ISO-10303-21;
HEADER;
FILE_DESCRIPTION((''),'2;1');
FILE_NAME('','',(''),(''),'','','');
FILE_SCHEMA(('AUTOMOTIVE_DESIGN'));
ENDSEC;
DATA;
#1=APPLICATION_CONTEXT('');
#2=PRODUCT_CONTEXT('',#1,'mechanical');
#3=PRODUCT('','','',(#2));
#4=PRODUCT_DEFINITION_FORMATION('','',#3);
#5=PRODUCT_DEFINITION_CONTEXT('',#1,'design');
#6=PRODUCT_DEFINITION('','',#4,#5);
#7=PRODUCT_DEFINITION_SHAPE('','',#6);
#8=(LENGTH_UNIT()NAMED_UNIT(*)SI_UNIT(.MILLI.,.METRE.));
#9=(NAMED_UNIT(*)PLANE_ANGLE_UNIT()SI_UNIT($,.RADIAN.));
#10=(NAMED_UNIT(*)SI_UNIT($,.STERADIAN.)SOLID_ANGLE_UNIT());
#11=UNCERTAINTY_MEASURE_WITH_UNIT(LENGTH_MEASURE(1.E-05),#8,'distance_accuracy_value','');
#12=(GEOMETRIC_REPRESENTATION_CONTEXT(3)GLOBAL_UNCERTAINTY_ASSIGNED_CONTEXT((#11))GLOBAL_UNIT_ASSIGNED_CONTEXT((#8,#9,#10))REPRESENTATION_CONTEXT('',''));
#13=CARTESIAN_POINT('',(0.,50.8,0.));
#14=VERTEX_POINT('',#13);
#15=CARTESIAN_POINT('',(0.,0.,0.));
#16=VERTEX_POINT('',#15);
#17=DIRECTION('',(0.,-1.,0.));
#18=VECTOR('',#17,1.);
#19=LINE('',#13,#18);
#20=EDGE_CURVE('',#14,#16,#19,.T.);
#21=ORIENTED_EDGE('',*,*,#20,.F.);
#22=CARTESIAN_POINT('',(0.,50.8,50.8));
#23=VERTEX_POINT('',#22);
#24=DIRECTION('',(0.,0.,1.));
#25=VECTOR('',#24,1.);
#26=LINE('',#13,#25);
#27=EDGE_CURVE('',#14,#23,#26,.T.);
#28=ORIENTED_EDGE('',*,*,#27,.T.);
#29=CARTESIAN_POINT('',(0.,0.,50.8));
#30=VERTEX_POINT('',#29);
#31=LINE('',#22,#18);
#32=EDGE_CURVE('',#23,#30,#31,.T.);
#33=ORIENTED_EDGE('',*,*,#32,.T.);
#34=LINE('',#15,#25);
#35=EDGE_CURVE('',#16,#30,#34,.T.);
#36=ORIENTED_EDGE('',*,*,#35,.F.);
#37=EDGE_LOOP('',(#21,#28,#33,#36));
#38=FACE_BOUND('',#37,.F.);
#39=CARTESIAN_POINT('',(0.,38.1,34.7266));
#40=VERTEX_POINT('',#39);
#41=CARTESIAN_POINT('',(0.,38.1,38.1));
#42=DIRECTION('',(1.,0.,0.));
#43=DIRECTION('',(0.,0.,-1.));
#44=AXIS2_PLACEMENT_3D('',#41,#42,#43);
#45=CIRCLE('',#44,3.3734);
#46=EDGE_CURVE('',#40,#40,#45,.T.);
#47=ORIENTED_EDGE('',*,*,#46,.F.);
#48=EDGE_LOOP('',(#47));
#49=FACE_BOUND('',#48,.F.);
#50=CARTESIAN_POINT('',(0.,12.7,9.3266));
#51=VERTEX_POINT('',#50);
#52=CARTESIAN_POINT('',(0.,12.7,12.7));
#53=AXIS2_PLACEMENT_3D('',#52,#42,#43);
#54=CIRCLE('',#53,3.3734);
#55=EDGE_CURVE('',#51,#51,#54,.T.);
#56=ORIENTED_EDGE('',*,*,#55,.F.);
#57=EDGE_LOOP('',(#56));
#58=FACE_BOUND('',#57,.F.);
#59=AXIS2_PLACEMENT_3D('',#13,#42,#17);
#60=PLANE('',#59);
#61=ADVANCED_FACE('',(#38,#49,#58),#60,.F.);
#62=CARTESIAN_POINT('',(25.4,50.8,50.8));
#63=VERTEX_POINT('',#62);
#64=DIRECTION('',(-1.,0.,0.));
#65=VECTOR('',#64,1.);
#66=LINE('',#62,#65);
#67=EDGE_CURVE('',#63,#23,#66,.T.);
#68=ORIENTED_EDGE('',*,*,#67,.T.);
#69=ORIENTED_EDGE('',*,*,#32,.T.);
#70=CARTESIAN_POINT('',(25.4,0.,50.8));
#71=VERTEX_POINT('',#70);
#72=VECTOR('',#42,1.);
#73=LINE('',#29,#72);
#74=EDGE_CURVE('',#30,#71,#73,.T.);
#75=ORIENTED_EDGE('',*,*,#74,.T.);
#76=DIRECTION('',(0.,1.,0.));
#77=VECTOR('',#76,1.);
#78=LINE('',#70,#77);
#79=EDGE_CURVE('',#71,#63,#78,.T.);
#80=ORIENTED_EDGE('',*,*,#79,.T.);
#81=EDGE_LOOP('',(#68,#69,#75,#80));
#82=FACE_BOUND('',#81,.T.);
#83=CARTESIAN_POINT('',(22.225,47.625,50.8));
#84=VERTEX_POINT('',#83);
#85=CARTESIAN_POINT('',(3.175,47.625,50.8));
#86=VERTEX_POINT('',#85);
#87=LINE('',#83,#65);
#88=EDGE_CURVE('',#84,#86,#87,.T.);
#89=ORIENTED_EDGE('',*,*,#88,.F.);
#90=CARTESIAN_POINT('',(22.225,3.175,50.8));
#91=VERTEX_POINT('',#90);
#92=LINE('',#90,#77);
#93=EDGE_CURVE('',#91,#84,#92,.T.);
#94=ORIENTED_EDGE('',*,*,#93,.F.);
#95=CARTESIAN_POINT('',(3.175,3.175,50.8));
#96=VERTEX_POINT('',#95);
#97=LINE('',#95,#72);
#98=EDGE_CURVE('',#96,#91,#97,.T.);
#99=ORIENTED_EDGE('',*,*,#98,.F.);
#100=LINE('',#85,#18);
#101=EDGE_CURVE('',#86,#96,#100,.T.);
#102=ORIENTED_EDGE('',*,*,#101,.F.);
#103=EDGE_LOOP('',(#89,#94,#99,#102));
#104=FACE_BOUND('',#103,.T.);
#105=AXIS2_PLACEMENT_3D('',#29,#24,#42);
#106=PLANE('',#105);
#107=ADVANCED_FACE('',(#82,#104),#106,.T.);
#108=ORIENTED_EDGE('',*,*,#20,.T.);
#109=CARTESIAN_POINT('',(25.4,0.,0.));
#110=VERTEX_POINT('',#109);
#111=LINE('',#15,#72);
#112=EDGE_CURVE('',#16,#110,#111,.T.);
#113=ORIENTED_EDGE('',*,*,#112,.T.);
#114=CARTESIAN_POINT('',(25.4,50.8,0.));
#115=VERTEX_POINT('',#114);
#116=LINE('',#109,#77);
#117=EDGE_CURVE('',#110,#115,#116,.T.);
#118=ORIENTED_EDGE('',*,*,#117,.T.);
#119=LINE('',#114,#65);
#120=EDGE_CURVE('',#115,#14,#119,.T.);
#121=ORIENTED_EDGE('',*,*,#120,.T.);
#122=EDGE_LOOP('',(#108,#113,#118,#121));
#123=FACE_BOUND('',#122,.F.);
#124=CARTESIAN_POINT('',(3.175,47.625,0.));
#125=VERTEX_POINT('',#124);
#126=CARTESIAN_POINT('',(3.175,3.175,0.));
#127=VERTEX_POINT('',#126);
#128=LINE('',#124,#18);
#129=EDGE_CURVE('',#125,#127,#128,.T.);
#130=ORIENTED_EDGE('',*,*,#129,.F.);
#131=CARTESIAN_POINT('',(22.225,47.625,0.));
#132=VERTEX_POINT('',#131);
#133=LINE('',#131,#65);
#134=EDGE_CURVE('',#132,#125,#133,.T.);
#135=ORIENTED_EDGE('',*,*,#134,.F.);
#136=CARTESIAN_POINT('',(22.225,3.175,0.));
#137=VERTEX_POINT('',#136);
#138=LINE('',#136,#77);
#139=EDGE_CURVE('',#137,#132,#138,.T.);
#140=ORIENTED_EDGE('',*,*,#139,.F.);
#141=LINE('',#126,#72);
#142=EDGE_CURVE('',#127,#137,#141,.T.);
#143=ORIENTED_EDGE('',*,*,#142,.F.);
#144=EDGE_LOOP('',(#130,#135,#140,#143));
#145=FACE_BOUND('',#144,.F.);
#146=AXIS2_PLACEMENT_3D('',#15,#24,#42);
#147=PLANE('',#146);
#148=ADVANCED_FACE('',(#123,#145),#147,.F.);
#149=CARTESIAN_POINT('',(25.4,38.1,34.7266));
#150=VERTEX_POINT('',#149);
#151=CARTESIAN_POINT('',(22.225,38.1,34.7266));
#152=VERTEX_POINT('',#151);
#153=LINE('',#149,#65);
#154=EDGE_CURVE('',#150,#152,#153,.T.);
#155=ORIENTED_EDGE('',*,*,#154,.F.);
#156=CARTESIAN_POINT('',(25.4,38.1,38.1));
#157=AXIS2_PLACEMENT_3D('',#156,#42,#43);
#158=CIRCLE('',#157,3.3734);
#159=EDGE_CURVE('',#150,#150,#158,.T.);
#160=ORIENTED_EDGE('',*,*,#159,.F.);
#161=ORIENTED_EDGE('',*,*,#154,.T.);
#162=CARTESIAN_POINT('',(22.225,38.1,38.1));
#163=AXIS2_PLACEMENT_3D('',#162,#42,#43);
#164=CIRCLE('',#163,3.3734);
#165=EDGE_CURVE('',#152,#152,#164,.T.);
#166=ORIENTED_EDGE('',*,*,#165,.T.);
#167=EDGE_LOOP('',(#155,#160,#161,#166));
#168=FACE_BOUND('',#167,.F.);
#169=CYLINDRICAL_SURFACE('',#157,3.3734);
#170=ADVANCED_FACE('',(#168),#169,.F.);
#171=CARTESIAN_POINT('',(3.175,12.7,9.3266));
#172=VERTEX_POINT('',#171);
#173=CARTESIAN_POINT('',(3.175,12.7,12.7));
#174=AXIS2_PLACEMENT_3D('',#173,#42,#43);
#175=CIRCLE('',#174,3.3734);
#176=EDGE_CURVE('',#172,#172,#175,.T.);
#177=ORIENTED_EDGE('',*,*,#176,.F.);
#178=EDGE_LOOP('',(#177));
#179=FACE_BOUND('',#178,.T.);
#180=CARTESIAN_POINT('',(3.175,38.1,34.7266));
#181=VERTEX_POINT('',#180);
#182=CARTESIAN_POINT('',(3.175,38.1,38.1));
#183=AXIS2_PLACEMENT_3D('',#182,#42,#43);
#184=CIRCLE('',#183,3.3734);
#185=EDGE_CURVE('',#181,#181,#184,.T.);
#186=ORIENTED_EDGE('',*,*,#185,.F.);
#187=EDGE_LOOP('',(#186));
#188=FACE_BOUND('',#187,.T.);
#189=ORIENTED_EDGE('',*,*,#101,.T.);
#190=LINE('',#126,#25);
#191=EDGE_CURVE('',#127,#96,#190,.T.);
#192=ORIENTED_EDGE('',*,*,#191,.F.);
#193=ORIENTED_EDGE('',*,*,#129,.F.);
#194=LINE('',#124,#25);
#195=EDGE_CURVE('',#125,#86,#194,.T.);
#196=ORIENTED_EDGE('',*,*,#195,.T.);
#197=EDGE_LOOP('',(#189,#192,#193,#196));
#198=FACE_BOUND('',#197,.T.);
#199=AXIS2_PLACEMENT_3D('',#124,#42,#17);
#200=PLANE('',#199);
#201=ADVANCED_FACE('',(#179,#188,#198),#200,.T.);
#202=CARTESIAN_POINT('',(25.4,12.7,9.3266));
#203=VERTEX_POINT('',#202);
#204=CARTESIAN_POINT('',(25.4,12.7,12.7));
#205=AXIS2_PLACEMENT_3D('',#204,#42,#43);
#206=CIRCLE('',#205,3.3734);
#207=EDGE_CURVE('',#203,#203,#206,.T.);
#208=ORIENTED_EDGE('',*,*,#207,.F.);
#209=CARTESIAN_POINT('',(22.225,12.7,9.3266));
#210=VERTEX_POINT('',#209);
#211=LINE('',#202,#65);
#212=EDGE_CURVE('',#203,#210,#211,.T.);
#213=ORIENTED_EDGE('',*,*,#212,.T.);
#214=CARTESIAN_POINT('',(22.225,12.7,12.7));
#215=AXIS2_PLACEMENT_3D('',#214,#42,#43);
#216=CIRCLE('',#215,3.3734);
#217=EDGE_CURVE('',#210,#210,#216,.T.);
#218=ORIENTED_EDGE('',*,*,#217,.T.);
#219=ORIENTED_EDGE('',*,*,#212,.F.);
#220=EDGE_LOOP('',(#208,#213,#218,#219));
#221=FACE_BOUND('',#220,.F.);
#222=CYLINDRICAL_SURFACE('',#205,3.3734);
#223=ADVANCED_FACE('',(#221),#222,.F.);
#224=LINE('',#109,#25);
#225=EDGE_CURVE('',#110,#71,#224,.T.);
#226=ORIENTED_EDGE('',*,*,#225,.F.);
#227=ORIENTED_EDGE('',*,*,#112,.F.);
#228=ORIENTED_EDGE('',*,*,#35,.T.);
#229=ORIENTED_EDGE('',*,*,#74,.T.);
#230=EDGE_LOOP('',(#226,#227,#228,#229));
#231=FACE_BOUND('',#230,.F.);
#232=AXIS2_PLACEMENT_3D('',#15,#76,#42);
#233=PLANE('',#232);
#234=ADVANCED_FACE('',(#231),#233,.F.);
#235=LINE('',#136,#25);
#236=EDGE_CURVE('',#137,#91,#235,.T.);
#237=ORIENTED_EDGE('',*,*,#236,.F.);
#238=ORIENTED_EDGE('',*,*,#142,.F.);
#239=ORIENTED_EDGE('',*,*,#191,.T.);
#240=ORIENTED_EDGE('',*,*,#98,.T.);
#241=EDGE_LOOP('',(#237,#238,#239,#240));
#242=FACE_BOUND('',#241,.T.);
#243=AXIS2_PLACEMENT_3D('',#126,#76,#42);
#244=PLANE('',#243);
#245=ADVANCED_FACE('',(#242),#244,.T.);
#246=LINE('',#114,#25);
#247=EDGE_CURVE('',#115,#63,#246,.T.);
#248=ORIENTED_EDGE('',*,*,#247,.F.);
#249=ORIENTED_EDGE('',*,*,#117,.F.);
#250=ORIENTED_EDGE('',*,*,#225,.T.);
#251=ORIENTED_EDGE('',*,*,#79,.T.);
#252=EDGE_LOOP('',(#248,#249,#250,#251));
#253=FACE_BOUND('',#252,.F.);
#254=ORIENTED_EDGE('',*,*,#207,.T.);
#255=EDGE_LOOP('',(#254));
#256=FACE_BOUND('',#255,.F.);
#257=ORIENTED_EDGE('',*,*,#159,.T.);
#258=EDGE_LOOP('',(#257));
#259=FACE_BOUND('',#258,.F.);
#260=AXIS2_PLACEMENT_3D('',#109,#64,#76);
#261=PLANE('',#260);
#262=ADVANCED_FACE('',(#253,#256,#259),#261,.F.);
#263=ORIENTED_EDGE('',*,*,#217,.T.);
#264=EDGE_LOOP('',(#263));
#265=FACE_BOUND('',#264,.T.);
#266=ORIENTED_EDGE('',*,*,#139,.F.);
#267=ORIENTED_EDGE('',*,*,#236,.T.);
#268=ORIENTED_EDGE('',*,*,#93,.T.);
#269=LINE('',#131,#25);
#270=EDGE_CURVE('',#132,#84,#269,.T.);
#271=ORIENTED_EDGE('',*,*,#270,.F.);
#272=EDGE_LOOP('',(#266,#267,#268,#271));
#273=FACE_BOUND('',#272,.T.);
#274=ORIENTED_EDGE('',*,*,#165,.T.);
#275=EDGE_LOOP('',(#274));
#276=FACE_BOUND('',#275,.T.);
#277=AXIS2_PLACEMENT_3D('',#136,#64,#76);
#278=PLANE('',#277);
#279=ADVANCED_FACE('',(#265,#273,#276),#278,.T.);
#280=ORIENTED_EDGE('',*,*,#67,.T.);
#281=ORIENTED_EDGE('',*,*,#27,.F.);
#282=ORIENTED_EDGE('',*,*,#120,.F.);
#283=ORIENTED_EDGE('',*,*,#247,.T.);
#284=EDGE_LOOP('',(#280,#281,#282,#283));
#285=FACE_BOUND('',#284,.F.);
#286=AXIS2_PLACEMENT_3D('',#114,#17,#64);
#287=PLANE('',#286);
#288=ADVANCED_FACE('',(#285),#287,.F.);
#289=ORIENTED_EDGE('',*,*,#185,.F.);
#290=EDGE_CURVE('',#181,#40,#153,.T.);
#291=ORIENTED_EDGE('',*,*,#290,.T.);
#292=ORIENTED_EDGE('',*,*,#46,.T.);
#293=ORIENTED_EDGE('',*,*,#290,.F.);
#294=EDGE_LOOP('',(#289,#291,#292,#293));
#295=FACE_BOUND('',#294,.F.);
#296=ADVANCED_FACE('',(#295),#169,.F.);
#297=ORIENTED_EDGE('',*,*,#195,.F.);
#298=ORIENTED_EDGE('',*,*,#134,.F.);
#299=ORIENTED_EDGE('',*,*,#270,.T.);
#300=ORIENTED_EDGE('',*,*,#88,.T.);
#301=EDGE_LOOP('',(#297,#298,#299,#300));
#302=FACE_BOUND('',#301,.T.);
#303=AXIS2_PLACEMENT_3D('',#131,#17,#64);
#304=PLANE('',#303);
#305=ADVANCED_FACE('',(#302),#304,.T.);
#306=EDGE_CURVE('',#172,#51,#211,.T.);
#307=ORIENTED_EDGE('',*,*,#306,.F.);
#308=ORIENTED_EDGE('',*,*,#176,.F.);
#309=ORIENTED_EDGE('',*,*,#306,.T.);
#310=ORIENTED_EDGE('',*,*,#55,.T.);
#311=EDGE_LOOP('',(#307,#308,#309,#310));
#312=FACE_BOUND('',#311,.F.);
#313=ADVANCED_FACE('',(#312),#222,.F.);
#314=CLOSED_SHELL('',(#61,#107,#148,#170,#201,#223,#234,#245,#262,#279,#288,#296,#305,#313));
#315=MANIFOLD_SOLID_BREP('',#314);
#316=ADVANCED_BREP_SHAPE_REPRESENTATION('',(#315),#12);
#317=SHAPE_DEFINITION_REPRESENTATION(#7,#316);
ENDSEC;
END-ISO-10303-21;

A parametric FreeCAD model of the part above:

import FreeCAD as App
import Part
import Sketcher
Q = App.Units.Quantity

doc = App.newDocument("Part")
body = doc.addObject("PartDesign::Body", "Body")

sketch1 = body.newObject("Sketcher::SketchObject", "Sketch")
sketch1.AttachmentSupport = (doc.getObject("XY_Plane"), [""])
sketch1.MapMode = "FlatFace"
sketch1.addGeometry([
    Part.LineSegment(App.Vector(0, 51, 0), App.Vector(0, 0, 0)),
    Part.LineSegment(App.Vector(0, 0, 0), App.Vector(25, 0, 0)),
    Part.LineSegment(App.Vector(25, 0, 0), App.Vector(25, 51, 0)),
    Part.LineSegment(App.Vector(25, 51, 0), App.Vector(0, 51, 0)),
    Part.LineSegment(App.Vector(22, 3, 0), App.Vector(3, 3, 0)),
    Part.LineSegment(App.Vector(3, 3, 0), App.Vector(3, 48, 0)),
    Part.LineSegment(App.Vector(3, 48, 0), App.Vector(22, 48, 0)),
    Part.LineSegment(App.Vector(22, 48, 0), App.Vector(22, 3, 0)),
], False)
sketch1.addConstraint([
    Sketcher.Constraint("Coincident", 0, 2, 1, 1),
    Sketcher.Constraint("Coincident", 1, 2, 2, 1),
    Sketcher.Constraint("Coincident", 2, 2, 3, 1),
    Sketcher.Constraint("Coincident", 3, 2, 0, 1),
    Sketcher.Constraint("Coincident", 4, 2, 5, 1),
    Sketcher.Constraint("Coincident", 5, 2, 6, 1),
    Sketcher.Constraint("Coincident", 6, 2, 7, 1),
    Sketcher.Constraint("Coincident", 7, 2, 4, 1),
    Sketcher.Constraint("Vertical", 0),
    Sketcher.Constraint("Horizontal", 1),
    Sketcher.Constraint("Vertical", 2),
    Sketcher.Constraint("Horizontal", 3),
    Sketcher.Constraint("Horizontal", 4),
    Sketcher.Constraint("Vertical", 5),
    Sketcher.Constraint("Horizontal", 6),
    Sketcher.Constraint("Vertical", 7),
    Sketcher.Constraint("Coincident", 0, 2, -1, 1),
    Sketcher.Constraint("DistanceX", 1, 1, 1, 2, Q("1 in")),
    Sketcher.Constraint("DistanceY", 0, 2, 0, 1, Q("2 in")),
    Sketcher.Constraint("DistanceX", -1, 1, 4, 2, Q("0.125 in")),
    Sketcher.Constraint("DistanceY", -1, 1, 4, 2, Q("0.125 in")),
    Sketcher.Constraint("DistanceY", 5, 2, 3, 2, Q("0.125 in")),
    Sketcher.Constraint("DistanceX", 6, 2, 2, 2, Q("0.125 in")),
])
pad1 = body.newObject("PartDesign::Pad", "Pad")
pad1.Profile = sketch1
pad1.Length = Q("2 in")

sketch2 = body.newObject("Sketcher::SketchObject", "Sketch001")
sketch2.AttachmentSupport = (doc.getObject("YZ_Plane"), [""])
sketch2.MapMode = "FlatFace"
sketch2.AttachmentOffset = App.Placement(App.Vector(0, 0, 1 * 25.4), App.Rotation())
sketch2.addGeometry([
    Part.Circle(App.Vector(38.1, 38.1, 0), App.Vector(0, 0, 1), 3.4),
    Part.Circle(App.Vector(12.7, 12.7, 0), App.Vector(0, 0, 1), 3.4),
], False)
sketch2.addConstraint([
    Sketcher.Constraint("Equal", 0, 1),
    Sketcher.Constraint("Diameter", 0, Q("0.265622 in")),
    Sketcher.Constraint("DistanceX", -1, 1, 1, 3, Q("0.5 in")),
    Sketcher.Constraint("DistanceY", -1, 1, 1, 3, Q("0.5 in")),
    Sketcher.Constraint("DistanceX", 1, 3, 0, 3, Q("1 in")),
    Sketcher.Constraint("DistanceY", 1, 3, 0, 3, Q("1 in")),
])
pocket1 = body.newObject("PartDesign::Pocket", "Pocket")
pocket1.Profile = sketch2
pocket1.Length = Q("1 in")

doc.recompute()
